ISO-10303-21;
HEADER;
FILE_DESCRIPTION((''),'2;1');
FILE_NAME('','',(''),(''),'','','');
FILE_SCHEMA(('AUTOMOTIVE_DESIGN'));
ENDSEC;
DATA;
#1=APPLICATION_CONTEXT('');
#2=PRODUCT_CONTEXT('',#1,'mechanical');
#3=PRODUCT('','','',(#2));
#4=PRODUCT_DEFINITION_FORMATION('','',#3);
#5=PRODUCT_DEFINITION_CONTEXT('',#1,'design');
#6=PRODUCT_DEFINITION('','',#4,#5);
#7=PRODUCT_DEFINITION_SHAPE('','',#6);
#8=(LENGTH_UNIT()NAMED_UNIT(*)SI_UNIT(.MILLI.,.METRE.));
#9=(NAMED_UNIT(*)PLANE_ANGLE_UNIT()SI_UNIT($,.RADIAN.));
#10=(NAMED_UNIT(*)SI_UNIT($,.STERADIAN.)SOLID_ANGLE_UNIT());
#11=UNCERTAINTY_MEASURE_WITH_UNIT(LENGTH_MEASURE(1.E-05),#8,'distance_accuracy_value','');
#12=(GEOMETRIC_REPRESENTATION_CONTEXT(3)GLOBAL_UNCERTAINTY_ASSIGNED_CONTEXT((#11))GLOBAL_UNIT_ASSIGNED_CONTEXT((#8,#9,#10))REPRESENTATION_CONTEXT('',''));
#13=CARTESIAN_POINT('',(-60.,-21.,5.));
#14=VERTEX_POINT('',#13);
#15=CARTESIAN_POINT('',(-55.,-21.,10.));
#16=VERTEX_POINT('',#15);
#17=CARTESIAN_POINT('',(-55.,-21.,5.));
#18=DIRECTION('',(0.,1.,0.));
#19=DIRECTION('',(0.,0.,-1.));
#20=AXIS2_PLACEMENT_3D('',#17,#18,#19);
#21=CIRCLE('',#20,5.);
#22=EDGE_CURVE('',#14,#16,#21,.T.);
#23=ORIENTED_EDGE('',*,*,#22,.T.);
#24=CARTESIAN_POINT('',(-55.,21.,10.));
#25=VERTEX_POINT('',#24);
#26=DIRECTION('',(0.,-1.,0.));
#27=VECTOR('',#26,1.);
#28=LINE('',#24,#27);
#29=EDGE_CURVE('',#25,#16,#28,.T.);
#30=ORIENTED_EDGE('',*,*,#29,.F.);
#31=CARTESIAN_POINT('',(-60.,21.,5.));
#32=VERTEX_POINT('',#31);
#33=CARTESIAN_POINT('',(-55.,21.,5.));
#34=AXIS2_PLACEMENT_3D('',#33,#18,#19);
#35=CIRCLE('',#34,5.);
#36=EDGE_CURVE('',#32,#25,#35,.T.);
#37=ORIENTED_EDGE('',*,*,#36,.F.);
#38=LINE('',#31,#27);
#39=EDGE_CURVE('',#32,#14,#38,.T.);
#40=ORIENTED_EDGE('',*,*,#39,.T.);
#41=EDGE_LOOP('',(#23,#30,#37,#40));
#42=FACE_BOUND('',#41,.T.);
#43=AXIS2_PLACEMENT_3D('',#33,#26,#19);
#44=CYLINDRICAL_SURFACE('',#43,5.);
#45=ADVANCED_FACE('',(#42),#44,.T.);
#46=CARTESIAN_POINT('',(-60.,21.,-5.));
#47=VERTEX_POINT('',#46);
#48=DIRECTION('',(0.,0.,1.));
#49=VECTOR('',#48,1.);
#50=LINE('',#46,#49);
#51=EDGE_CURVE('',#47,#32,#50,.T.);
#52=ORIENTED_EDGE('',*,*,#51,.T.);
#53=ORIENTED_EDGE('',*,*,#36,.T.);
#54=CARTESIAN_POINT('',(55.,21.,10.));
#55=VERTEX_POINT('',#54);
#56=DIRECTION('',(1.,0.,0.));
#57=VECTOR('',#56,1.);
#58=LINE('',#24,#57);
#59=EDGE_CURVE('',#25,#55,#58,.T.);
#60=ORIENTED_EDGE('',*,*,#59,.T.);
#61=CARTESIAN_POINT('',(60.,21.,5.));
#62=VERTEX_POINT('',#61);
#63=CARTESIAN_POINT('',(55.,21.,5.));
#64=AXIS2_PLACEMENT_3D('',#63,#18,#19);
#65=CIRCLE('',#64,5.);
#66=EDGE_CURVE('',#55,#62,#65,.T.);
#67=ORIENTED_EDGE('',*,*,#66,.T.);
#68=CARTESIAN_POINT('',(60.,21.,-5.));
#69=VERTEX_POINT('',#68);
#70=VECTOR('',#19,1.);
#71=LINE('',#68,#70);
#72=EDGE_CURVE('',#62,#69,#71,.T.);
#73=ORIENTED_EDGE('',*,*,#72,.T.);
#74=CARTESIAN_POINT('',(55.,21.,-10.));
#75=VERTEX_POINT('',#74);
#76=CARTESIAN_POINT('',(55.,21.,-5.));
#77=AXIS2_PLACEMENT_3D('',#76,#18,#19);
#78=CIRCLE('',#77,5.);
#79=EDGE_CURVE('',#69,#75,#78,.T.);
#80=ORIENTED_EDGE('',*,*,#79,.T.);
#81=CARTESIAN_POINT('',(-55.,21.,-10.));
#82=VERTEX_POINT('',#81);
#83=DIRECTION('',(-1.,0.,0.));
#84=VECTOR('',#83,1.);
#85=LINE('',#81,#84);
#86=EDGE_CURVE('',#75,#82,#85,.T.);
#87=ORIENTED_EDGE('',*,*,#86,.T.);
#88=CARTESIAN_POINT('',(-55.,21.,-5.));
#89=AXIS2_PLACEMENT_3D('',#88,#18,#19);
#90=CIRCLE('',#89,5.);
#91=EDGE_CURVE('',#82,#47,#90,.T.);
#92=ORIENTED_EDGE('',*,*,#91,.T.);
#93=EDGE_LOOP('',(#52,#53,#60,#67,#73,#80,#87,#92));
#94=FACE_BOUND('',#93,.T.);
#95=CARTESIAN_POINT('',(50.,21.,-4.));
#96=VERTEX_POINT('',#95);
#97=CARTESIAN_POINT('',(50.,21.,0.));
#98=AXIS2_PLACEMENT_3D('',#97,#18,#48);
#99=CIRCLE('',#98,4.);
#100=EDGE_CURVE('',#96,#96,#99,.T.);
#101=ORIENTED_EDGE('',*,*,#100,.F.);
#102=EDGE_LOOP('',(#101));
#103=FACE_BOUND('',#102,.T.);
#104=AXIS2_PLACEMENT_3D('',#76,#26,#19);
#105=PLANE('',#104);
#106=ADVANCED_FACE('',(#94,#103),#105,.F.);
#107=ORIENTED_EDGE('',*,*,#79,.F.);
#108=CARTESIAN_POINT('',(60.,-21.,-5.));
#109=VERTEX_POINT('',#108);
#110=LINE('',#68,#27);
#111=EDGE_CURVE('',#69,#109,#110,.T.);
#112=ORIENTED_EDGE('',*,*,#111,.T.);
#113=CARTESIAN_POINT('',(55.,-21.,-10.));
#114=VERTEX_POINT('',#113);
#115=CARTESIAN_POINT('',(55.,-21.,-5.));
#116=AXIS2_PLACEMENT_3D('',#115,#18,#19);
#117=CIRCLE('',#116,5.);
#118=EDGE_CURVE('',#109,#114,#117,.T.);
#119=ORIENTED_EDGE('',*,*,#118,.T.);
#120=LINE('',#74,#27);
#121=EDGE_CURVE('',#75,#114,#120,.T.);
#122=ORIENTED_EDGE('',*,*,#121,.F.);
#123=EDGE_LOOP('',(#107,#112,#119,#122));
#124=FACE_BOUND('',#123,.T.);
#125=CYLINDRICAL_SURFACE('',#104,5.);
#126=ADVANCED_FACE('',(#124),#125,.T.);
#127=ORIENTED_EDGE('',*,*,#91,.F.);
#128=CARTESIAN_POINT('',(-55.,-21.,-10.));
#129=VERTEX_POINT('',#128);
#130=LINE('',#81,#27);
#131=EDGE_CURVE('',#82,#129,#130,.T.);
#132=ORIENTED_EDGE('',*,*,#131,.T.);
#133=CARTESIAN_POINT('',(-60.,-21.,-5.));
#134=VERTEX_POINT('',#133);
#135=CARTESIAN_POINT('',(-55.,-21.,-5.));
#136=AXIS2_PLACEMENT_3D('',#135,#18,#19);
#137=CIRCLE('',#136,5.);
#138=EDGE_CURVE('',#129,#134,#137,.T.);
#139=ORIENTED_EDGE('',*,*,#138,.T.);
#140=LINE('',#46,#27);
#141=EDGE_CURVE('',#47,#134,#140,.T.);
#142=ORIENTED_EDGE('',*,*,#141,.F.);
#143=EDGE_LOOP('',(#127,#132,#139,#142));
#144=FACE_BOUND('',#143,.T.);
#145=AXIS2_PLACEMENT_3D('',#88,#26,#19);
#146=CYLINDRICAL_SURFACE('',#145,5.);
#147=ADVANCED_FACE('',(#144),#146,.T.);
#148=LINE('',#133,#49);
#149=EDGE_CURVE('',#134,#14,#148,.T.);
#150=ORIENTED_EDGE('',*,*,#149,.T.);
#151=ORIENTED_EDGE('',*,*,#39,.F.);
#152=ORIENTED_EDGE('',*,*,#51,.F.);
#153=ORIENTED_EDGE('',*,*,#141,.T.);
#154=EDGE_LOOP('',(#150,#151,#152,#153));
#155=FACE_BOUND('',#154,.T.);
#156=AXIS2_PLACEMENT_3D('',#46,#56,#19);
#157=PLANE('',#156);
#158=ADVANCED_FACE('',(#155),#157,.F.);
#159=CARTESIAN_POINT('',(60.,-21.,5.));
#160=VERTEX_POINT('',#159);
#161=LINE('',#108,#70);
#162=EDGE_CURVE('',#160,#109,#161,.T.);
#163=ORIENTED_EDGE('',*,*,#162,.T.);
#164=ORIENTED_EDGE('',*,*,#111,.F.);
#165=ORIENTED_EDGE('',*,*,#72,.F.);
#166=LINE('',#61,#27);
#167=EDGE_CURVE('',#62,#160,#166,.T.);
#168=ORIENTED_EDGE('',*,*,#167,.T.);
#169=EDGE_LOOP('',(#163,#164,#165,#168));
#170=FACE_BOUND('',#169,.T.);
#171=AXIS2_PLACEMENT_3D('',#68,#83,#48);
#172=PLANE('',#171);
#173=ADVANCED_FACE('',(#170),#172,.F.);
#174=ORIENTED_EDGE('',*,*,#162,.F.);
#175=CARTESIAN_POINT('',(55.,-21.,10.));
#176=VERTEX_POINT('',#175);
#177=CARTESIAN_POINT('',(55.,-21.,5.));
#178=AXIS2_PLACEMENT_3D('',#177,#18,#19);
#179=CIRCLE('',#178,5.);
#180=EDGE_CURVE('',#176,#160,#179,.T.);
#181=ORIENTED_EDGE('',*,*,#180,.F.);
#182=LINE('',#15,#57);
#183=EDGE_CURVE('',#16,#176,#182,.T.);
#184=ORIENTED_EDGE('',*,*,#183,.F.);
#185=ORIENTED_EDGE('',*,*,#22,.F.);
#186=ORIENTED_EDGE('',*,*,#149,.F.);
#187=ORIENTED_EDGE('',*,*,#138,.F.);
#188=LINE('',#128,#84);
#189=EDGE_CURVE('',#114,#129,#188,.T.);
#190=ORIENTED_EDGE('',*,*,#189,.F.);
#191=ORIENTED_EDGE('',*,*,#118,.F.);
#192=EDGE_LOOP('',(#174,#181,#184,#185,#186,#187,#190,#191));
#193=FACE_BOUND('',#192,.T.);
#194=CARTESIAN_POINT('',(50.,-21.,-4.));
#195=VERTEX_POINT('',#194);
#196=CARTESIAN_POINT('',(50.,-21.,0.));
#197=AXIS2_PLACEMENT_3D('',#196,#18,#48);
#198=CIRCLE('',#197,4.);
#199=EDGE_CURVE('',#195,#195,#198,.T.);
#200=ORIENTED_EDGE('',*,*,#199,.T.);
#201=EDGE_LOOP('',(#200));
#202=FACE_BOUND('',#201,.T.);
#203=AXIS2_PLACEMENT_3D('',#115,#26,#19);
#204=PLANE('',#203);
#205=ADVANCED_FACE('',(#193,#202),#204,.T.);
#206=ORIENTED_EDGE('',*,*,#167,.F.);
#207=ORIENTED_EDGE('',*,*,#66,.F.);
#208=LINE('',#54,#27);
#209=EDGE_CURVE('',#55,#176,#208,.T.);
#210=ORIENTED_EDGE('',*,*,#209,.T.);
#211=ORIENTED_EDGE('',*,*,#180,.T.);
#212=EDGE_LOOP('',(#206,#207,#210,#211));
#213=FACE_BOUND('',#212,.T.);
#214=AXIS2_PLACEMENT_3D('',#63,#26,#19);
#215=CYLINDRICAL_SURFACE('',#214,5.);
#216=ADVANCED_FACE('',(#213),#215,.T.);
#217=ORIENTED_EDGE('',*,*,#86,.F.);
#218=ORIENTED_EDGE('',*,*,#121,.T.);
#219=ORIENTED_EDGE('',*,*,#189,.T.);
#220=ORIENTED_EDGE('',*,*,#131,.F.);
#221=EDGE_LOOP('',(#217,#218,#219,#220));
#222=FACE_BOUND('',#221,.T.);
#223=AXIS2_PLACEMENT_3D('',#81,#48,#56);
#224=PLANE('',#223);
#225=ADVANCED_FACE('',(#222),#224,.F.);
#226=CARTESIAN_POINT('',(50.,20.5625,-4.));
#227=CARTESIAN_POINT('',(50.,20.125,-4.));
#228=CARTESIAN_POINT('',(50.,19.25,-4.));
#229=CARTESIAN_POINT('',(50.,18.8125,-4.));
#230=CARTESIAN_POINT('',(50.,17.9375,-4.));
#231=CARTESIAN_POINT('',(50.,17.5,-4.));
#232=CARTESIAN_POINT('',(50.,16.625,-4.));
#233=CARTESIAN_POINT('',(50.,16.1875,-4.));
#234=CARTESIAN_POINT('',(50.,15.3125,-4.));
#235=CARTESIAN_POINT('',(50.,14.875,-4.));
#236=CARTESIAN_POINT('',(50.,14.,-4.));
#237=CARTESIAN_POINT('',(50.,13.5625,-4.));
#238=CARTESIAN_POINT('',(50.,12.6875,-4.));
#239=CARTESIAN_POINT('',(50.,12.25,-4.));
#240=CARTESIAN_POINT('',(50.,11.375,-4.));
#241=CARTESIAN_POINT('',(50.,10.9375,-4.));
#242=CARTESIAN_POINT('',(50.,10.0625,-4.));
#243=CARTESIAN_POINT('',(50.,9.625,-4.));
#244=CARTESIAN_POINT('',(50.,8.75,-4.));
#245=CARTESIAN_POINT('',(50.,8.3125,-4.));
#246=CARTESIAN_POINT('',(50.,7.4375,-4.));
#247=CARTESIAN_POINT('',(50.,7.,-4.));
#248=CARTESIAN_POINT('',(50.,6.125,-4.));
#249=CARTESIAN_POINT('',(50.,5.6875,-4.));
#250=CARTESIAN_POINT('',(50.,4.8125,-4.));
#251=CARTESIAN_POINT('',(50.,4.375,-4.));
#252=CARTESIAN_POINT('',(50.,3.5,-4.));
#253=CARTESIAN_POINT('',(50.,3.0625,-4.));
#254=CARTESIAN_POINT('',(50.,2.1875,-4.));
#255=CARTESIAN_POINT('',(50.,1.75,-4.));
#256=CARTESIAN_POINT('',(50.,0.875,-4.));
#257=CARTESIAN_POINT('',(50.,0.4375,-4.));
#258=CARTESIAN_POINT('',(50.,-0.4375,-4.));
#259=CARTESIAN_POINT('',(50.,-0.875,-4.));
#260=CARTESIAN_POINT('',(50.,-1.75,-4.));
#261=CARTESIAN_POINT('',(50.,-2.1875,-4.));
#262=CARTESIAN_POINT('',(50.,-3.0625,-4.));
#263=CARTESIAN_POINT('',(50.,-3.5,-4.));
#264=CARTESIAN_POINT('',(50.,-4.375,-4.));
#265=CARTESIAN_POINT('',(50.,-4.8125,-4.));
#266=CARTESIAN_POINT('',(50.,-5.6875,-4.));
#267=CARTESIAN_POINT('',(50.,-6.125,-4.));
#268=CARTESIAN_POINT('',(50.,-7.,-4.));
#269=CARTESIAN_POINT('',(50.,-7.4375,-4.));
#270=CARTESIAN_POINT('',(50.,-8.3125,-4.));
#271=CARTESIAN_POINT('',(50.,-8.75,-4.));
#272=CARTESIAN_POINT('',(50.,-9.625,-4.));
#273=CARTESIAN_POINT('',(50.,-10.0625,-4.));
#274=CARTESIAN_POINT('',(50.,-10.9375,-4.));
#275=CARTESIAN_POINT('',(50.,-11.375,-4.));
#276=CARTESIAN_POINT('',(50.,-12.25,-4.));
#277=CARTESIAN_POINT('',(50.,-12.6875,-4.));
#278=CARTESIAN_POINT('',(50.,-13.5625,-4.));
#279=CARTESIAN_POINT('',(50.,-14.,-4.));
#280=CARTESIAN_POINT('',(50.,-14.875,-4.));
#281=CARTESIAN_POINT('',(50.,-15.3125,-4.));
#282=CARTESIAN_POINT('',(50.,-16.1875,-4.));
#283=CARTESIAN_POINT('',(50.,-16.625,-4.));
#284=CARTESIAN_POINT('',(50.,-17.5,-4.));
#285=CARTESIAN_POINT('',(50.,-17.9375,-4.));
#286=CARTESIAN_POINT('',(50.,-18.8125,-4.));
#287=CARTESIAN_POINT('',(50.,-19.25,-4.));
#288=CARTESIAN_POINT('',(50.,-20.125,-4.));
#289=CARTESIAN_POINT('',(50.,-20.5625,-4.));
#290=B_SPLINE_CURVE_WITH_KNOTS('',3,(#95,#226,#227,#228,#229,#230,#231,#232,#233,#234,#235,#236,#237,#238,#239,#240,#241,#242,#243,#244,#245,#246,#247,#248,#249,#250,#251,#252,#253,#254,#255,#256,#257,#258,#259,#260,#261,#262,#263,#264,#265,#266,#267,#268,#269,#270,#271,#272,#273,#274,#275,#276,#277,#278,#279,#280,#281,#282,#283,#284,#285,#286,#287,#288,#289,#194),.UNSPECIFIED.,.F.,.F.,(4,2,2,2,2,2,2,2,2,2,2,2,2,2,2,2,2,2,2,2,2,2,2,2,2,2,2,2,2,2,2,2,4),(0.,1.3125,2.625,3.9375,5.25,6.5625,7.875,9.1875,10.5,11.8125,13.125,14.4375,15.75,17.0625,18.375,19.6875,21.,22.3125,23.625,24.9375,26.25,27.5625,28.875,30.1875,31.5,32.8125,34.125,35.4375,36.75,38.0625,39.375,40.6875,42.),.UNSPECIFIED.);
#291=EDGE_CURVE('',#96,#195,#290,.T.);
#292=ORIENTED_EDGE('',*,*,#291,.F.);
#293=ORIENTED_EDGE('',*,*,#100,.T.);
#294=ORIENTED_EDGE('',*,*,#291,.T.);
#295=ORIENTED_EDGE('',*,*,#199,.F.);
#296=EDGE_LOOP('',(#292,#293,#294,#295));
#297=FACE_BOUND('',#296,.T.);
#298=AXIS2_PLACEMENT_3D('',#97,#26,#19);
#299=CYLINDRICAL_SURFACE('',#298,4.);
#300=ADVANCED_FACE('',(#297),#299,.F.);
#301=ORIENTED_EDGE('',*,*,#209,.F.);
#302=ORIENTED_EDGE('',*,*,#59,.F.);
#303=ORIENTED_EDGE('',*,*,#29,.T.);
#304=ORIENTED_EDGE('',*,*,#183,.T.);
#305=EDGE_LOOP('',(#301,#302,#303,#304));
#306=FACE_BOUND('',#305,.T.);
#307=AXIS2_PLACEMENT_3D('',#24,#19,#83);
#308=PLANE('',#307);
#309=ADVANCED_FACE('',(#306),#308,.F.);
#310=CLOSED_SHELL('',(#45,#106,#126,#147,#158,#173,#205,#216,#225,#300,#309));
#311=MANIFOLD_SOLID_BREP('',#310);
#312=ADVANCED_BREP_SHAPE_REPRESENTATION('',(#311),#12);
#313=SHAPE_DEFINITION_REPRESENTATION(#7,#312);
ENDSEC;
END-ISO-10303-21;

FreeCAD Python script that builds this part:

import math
import FreeCAD as App
import Part
import Sketcher
from FreeCAD import Vector

doc = App.newDocument("Part")
params = doc.addObject("Spreadsheet::Sheet", "Params")
for row, (alias, value) in enumerate([
    ("sketch1_diameter", "8 mm"),
    ("sketch1_radius", "5 mm"),
    ("sketch1_width", "110 mm"),
    ("sketch1_height", "10 mm"),
    ("pad1_length", "42 mm"),
], start=1):
    params.set(f"A{row}", alias)
    params.set(f"B{row}", "=" + value)
    params.setAlias(f"B{row}", alias)

body = doc.addObject("PartDesign::Body", "Body")

# Sketch on XZ plane
sketch1 = body.newObject("Sketcher::SketchObject", "Sketch")
sketch1.AttachmentSupport = (doc.getObject("XZ_Plane"), [""])
sketch1.MapMode = "FlatFace"
sketch1.addGeometry([
    Part.LineSegment(Vector(55, -10, 0), Vector(-55, -10, 0)),  # 0
    Part.ArcOfCircle(Part.Circle(Vector(-55, -5, 0), Vector(0, 0, 1), 5), math.radians(180), math.radians(270)),  # 1
    Part.LineSegment(Vector(-60, -5, 0), Vector(-60, 5, 0)),  # 2
    Part.ArcOfCircle(Part.Circle(Vector(-55, 5, 0), Vector(0, 0, 1), 5), math.radians(90), math.radians(180)),  # 3
    Part.LineSegment(Vector(-55, 10, 0), Vector(55, 10, 0)),  # 4
    Part.ArcOfCircle(Part.Circle(Vector(55, 5, 0), Vector(0, 0, 1), 5), math.radians(0), math.radians(90)),  # 5
    Part.LineSegment(Vector(60, 5, 0), Vector(60, -5, 0)),  # 6
    Part.ArcOfCircle(Part.Circle(Vector(55, -5, 0), Vector(0, 0, 1), 5), math.radians(-90), math.radians(0)),  # 7
    Part.Circle(Vector(50, 0, 0), Vector(0, 0, 1), 4),  # 8
], False)
sketch1.addConstraint([
    Sketcher.Constraint("Tangent", 0, 2, 1, 2),
    Sketcher.Constraint("Tangent", 1, 1, 2, 1),
    Sketcher.Constraint("Tangent", 2, 2, 3, 2),
    Sketcher.Constraint("Tangent", 3, 1, 4, 1),
    Sketcher.Constraint("Tangent", 4, 2, 5, 2),
    Sketcher.Constraint("Tangent", 5, 1, 6, 1),
    Sketcher.Constraint("Tangent", 6, 2, 7, 2),
    Sketcher.Constraint("Tangent", 7, 1, 0, 1),
    Sketcher.Constraint("Horizontal", 0),
    Sketcher.Constraint("Vertical", 2),
    Sketcher.Constraint("Horizontal", 4),
    Sketcher.Constraint("Vertical", 6),
    Sketcher.Constraint("Equal", 1, 3),
    Sketcher.Constraint("Equal", 3, 5),
    Sketcher.Constraint("Equal", 5, 7),
    Sketcher.Constraint("Symmetric", 1, 3, 5, 3, -1, 1),
    Sketcher.Constraint("PointOnObject", 8, 3, -1),
    Sketcher.Constraint("Diameter", 8, 8.0),
    Sketcher.Constraint("Radius", 1, 5.0),
    Sketcher.Constraint("DistanceX", 0, 2, 0, 1, 110.0),
    Sketcher.Constraint("DistanceY", 2, 1, 2, 2, 10.0),
    Sketcher.Constraint("DistanceX", -1, 1, 8, 3, 50.0),
])
sketch1.setExpression("Constraints[17]", "Params.sketch1_diameter")
sketch1.setExpression("Constraints[18]", "Params.sketch1_radius")
sketch1.setExpression("Constraints[19]", "Params.sketch1_width")
sketch1.setExpression("Constraints[20]", "Params.sketch1_height")
pad1 = body.newObject("PartDesign::Pad", "Pad")
pad1.Profile = sketch1
pad1.setExpression("Length", "Params.pad1_length")
pad1.Midplane = True

doc.recompute()
